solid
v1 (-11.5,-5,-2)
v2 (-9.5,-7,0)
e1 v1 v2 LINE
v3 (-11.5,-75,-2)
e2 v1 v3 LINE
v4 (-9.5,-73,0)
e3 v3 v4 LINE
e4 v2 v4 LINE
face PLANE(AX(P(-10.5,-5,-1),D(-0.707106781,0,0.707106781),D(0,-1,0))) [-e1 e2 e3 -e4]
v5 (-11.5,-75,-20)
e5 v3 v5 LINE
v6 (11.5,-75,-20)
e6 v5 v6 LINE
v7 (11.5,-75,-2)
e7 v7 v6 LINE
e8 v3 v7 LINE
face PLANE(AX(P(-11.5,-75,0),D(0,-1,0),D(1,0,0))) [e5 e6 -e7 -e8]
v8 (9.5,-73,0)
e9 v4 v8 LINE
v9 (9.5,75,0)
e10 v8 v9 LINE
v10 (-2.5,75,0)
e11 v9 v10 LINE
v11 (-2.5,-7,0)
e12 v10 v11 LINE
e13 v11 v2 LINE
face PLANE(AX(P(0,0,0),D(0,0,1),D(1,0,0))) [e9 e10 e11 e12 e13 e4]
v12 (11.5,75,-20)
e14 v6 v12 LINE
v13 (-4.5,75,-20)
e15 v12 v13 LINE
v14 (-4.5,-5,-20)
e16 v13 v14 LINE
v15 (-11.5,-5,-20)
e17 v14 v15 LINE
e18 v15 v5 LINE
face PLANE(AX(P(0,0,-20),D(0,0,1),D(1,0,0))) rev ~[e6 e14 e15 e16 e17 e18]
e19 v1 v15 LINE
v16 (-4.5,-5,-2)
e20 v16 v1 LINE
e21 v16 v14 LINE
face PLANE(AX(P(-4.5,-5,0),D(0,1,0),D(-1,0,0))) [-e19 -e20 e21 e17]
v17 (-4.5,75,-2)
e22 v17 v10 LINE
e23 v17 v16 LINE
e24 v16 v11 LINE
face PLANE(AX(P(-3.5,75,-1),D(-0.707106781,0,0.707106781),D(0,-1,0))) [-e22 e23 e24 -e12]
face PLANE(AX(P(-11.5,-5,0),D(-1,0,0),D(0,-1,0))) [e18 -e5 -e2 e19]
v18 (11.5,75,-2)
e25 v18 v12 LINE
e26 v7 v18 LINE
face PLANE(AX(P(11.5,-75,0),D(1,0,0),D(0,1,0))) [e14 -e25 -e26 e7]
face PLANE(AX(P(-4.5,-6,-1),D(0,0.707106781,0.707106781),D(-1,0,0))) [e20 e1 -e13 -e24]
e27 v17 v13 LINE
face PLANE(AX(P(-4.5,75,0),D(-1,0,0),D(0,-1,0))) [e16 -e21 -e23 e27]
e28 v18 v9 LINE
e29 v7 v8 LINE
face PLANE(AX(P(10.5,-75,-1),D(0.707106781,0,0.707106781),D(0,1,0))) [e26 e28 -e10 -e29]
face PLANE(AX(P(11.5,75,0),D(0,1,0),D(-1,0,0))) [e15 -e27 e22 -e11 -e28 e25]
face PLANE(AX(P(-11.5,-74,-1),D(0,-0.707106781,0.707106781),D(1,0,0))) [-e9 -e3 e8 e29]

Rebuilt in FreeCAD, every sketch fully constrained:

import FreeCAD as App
import Part
import Sketcher

V = App.Vector


def edges_at(feature, points):
    """Names of the edges that pass closest to the given points."""
    edges = feature.Shape.Edges
    near = lambda p: min(range(len(edges)), key=lambda i: edges[i].distToShape(Part.Vertex(*p))[0])
    return sorted({f"Edge{near(p) + 1}" for p in points})

doc = App.newDocument("Part")
params = doc.addObject("Spreadsheet::Sheet", "Params")
for row, (alias, value) in enumerate([
    ("sketch1_width", "23 mm"),
    ("sketch1_width2", "7 mm"),
    ("sketch1_height", "150 mm"),
    ("sketch1_height2", "80 mm"),
    ("pad1_length", "20 mm"),
    ("chamfer_size", "2 mm"),
], start=1):
    params.set(f"A{row}", alias)
    params.set(f"B{row}", "=" + value)
    params.setAlias(f"B{row}", alias)

body = doc.addObject("PartDesign::Body", "Body")

# Sketch on XY plane
sketch1 = doc.addObject("Sketcher::SketchObject", "Sketch")
body.addObject(sketch1)
sketch1.AttachmentSupport = (doc.XY_Plane, [""])
sketch1.MapMode = "FlatFace"
sketch1.addGeometry([
    Part.LineSegment(V(-11.5, -5, 0), V(-11.5, -75, 0)),  # 0
    Part.LineSegment(V(-11.5, -75, 0), V(11.5, -75, 0)),  # 1
    Part.LineSegment(V(11.5, -75, 0), V(11.5, 75, 0)),  # 2
    Part.LineSegment(V(11.5, 75, 0), V(-4.5, 75, 0)),  # 3
    Part.LineSegment(V(-4.5, 75, 0), V(-4.5, -5, 0)),  # 4
    Part.LineSegment(V(-4.5, -5, 0), V(-11.5, -5, 0)),  # 5
], False)
sketch1.addConstraint([
    Sketcher.Constraint("Coincident", 0, 2, 1, 1),
    Sketcher.Constraint("Coincident", 1, 2, 2, 1),
    Sketcher.Constraint("Coincident", 2, 2, 3, 1),
    Sketcher.Constraint("Coincident", 3, 2, 4, 1),
    Sketcher.Constraint("Coincident", 4, 2, 5, 1),
    Sketcher.Constraint("Coincident", 5, 2, 0, 1),
    Sketcher.Constraint("Vertical", 0),
    Sketcher.Constraint("Horizontal", 1),
    Sketcher.Constraint("Vertical", 2),
    Sketcher.Constraint("Horizontal", 3),
    Sketcher.Constraint("Vertical", 4),
    Sketcher.Constraint("Horizontal", 5),
    Sketcher.Constraint("Symmetric", 0, 2, 2, 2, -1, 1),
    Sketcher.Constraint("DistanceX", 1, 1, 1, 2, 23.0),
    Sketcher.Constraint("DistanceX", 5, 2, 5, 1, 7.0),
    Sketcher.Constraint("DistanceY", 2, 1, 2, 2, 150.0),
    Sketcher.Constraint("DistanceY", 4, 2, 4, 1, 80.0),
])
sketch1.setExpression("Constraints[13]", "Params.sketch1_width")
sketch1.setExpression("Constraints[14]", "Params.sketch1_width2")
sketch1.setExpression("Constraints[15]", "Params.sketch1_height")
sketch1.setExpression("Constraints[16]", "Params.sketch1_height2")
pad1 = doc.addObject("PartDesign::Pad", "Pad")
body.addObject(pad1)
pad1.Profile = sketch1
pad1.setExpression("Length", "Params.pad1_length")
pad1.Reversed = True
doc.recompute()

chamfer = doc.addObject("PartDesign::Chamfer", "Chamfer")
body.addObject(chamfer)
chamfer.Base = (pad1, edges_at(pad1, [
    (0, -75, 0),
    (-11.5, -40, 0),
    (11.5, 0, 0),
    (-8, -5, 0),
    (-4.5, 35, 0),
]))
chamfer.setExpression("Size", "Params.chamfer_size")

doc.recompute()
